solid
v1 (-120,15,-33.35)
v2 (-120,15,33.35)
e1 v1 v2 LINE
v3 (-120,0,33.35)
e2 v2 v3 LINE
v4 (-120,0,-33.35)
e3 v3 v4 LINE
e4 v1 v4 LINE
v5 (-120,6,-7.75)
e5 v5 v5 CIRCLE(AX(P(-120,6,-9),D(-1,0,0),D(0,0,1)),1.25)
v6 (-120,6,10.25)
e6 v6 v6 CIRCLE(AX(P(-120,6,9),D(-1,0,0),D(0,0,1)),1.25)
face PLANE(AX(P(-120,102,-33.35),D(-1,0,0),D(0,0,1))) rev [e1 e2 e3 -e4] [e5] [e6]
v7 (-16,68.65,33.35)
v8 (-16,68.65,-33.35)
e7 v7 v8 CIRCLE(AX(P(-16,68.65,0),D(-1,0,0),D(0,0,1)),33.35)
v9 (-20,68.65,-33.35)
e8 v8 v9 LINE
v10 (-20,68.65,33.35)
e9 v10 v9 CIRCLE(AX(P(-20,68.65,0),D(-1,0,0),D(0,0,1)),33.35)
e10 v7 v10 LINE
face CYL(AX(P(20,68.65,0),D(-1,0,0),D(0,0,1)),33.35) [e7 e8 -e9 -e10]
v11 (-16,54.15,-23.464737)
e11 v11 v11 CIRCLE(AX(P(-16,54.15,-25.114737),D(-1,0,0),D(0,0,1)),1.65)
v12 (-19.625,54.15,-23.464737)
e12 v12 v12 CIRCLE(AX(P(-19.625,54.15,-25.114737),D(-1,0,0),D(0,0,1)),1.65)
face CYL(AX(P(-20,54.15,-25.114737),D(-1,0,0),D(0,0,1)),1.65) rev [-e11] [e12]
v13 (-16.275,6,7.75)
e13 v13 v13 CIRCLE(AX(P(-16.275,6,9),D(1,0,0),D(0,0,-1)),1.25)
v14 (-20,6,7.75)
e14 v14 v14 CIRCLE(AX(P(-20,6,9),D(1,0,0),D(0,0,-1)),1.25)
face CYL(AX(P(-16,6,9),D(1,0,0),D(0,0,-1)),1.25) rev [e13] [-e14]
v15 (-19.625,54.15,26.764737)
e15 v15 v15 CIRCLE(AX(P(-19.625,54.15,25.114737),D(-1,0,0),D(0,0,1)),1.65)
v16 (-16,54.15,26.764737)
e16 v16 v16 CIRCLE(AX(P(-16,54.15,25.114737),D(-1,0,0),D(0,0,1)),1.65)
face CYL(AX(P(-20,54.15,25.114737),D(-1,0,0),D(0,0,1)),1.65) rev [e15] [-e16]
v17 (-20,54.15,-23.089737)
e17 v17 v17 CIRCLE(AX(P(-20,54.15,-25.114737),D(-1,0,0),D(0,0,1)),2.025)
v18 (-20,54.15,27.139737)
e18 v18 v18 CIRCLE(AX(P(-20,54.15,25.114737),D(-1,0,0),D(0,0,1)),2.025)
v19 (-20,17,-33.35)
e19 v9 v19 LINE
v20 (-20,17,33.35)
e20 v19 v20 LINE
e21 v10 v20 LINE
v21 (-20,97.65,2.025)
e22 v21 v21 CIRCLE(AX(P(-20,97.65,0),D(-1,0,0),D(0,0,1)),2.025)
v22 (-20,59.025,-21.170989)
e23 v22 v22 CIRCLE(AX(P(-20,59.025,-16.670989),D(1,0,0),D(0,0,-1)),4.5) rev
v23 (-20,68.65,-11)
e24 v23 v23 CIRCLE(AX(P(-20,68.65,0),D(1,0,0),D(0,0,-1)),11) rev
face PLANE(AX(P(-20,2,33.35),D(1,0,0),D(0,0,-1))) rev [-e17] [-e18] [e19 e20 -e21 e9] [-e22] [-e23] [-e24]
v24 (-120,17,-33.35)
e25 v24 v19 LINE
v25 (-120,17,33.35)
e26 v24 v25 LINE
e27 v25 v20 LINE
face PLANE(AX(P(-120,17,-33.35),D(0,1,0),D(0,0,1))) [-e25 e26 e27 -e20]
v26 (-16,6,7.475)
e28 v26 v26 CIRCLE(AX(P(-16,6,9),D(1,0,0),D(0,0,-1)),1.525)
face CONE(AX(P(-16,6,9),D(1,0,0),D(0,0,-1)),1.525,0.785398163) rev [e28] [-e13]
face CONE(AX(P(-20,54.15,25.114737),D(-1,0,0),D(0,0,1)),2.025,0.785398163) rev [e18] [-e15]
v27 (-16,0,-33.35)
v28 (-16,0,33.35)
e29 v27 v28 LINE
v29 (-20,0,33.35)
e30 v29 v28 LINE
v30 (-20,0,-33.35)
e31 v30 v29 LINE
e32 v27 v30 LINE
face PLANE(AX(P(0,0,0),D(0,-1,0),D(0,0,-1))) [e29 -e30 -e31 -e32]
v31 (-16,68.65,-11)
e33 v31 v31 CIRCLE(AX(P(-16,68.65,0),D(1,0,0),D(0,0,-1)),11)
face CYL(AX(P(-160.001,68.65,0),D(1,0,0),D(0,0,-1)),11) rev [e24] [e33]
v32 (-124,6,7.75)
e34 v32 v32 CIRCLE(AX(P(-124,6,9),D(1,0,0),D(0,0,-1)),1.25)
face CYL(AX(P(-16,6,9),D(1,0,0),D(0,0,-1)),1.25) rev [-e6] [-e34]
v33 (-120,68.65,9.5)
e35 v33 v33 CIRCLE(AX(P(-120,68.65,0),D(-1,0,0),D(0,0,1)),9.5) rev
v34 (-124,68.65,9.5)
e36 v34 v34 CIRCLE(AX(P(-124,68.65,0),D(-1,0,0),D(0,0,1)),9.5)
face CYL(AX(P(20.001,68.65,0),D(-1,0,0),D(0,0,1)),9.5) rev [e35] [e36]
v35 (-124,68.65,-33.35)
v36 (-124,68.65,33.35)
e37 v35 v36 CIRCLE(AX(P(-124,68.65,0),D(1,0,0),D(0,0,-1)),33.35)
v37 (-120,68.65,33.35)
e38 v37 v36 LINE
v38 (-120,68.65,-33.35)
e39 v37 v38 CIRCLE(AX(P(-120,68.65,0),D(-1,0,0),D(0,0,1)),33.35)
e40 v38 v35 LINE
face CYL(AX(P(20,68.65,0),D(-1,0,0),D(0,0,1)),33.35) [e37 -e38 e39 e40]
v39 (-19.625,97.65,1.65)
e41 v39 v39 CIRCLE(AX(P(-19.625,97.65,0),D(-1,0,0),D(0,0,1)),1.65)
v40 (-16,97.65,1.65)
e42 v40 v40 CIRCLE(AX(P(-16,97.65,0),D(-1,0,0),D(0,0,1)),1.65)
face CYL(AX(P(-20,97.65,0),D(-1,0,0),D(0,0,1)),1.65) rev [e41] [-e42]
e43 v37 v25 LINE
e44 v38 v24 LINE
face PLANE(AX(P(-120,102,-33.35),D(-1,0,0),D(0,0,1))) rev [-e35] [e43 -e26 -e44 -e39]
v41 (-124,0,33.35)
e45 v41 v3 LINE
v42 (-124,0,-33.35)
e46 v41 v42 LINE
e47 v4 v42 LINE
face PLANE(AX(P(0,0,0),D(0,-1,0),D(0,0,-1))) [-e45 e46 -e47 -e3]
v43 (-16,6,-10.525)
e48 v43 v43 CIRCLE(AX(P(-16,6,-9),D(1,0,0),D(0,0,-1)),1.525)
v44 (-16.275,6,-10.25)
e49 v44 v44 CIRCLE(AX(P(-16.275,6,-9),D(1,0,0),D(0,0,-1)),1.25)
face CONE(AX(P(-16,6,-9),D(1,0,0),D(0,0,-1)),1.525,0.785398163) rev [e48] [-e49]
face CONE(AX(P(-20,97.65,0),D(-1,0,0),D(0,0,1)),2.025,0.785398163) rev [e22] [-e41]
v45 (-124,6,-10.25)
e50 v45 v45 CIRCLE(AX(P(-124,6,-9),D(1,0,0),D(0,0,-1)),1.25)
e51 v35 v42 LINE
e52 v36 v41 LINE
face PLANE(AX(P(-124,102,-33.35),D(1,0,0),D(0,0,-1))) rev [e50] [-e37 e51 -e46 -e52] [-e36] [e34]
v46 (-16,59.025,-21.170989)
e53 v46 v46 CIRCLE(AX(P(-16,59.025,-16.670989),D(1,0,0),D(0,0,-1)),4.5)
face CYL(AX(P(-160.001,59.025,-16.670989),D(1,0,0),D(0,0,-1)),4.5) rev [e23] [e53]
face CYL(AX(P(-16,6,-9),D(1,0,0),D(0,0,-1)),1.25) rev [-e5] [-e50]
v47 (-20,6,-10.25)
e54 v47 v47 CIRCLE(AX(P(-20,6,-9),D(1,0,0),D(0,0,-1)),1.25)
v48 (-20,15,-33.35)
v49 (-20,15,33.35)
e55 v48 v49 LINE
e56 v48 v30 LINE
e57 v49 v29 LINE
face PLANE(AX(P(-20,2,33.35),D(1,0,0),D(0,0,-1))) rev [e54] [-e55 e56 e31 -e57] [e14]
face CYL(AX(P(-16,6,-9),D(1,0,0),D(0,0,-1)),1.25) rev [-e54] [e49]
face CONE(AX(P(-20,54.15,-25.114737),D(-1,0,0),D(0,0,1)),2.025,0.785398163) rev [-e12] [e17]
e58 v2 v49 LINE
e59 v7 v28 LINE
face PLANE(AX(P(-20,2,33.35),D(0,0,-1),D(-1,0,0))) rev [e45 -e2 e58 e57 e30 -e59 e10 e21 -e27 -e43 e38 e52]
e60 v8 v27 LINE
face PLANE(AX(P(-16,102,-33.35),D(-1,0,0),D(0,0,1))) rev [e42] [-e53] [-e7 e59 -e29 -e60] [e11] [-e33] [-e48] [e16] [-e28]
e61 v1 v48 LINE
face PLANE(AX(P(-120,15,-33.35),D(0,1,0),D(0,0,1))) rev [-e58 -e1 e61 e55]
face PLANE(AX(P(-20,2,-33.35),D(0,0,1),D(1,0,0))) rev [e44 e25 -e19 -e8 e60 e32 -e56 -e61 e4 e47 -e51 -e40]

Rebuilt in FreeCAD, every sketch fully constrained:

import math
import FreeCAD as App
import Part
import Sketcher
from FreeCAD import Vector
Q = App.Units.Quantity


def edges_at(feature, points):
    """Names of the edges that pass closest to the given points."""
    edges = feature.Shape.Edges
    near = lambda p: min(range(len(edges)), key=lambda i: edges[i].distToShape(Part.Vertex(*p))[0])
    return sorted({f"Edge{near(p) + 1}" for p in points})

doc = App.newDocument("Part")
params = doc.addObject("Spreadsheet::Sheet", "Params")
for row, (alias, value) in enumerate([
    ("sketch1_width", "40 mm"),
    ("sketch1_height", "66.7 mm"),
    ("pad1_length", "2 mm"),
    ("sketch2_width", "4 mm"),
    ("sketch2_height", "66.7 mm"),
    ("pad2_length", "100 mm"),
    ("sketch3_radius", "33.35 mm"),
    ("sketch4_diameter", "3.3 mm"),
    ("hole_diameter", "3.3 mm"),
    ("hole_csink_diameter", "4.05 mm"),
    ("sketch5_width", "2 mm"),
    ("sketch5_height", "1.65 mm"),
    ("groove_angle", "360 deg"),
    ("linearpattern_pitch", "68.592947 mm"),
    ("linearpattern2_pitch", "26 mm"),
    ("linearpattern3_pitch", "62.376999 mm"),
    ("linearpattern4_pitch", "56.7 mm"),
    ("sketch6_width", "2 mm"),
    ("sketch6_height", "66.7 mm"),
    ("pad3_length", "100 mm"),
    ("sketch7_width", "40 mm"),
    ("sketch7_height", "66.7 mm"),
    ("pad4_length", "2 mm"),
    ("sketch8_width", "4 mm"),
    ("sketch8_height", "66.7 mm"),
    ("pad5_length", "100 mm"),
    ("sketch9_radius", "33.35 mm"),
    ("sketch10_width", "2 mm"),
    ("sketch10_height", "1.65 mm"),
    ("groove2_angle", "360 deg"),
    ("linearpattern5_pitch", "26 mm"),
    ("linearpattern6_pitch", "62.376999 mm"),
    ("linearpattern7_pitch", "56.7 mm"),
    ("sketch11_diameter", "19 mm"),
    ("sketch12_diameter", "22 mm"),
    ("sketch13_diameter", "9 mm"),
    ("fillet_radius", "2 mm"),
    ("sketch14_width", "36 mm"),
    ("sketch14_height", "66.7 mm"),
    ("sketch15_width", "36 mm"),
    ("sketch15_height", "66.7 mm"),
    ("sketch16_diameter", "2.5 mm"),
    ("hole2_diameter", "2.5 mm"),
    ("hole2_csink_diameter", "3.05 mm"),
], start=1):
    params.set(f"A{row}", alias)
    params.set(f"B{row}", "=" + value)
    params.setAlias(f"B{row}", alias)

body = doc.addObject("PartDesign::Body", "Body")

sketch1 = body.newObject("Sketcher::SketchObject", "Sketch")
sketch1.AttachmentSupport = (doc.getObject("XZ_Plane"), [""])
sketch1.MapMode = "FlatFace"
sketch1.addGeometry([
    Part.LineSegment(Vector(-20, -33, 0), Vector(-20, 33, 0)),
    Part.LineSegment(Vector(-20, 33, 0), Vector(20, 33, 0)),
    Part.LineSegment(Vector(20, 33, 0), Vector(20, -33, 0)),
    Part.LineSegment(Vector(20, -33, 0), Vector(-20, -33, 0)),
], False)
sketch1.addConstraint([
    Sketcher.Constraint("Coincident", 0, 2, 1, 1),
    Sketcher.Constraint("Coincident", 1, 2, 2, 1),
    Sketcher.Constraint("Coincident", 2, 2, 3, 1),
    Sketcher.Constraint("Coincident", 3, 2, 0, 1),
    Sketcher.Constraint("Vertical", 0),
    Sketcher.Constraint("Horizontal", 1),
    Sketcher.Constraint("Vertical", 2),
    Sketcher.Constraint("Horizontal", 3),
    Sketcher.Constraint("Symmetric", 0, 2, 2, 2, -1, 1),
    Sketcher.Constraint("DistanceX", 1, 1, 1, 2, Q("40 mm")),
    Sketcher.Constraint("DistanceY", 0, 1, 0, 2, Q("66.7 mm")),
])
sketch1.setExpression("Constraints[9]", "Params.sketch1_width")
sketch1.setExpression("Constraints[10]", "Params.sketch1_height")
pad1 = body.newObject("PartDesign::Pad", "Pad")
pad1.Profile = sketch1
pad1.setExpression("Length", "Params.pad1_length")
pad1.Reversed = True

sketch2 = body.newObject("Sketcher::SketchObject", "Sketch001")
sketch2.AttachmentSupport = (doc.getObject("XZ_Plane"), [""])
sketch2.MapMode = "FlatFace"
sketch2.AttachmentOffset = App.Placement(Vector(0, 0, -2), App.Rotation())
sketch2.addGeometry([
    Part.LineSegment(Vector(-20, -33.4, 0), Vector(-20, 33.4, 0)),
    Part.LineSegment(Vector(-20, 33.4, 0), Vector(-16, 33.4, 0)),
    Part.LineSegment(Vector(-16, 33.4, 0), Vector(-16, -33.4, 0)),
    Part.LineSegment(Vector(-16, -33.4, 0), Vector(-20, -33.4, 0)),
], False)
sketch2.addConstraint([
    Sketcher.Constraint("Coincident", 0, 2, 1, 1),
    Sketcher.Constraint("Coincident", 1, 2, 2, 1),
    Sketcher.Constraint("Coincident", 2, 2, 3, 1),
    Sketcher.Constraint("Coincident", 3, 2, 0, 1),
    Sketcher.Constraint("Vertical", 0),
    Sketcher.Constraint("Horizontal", 1),
    Sketcher.Constraint("Vertical", 2),
    Sketcher.Constraint("Horizontal", 3),
    Sketcher.Constraint("DistanceX", 1, 1, 1, 2, Q("4 mm")),
    Sketcher.Constraint("DistanceY", 0, 1, 0, 2, Q("66.7 mm")),
    Sketcher.Constraint("DistanceX", 0, 2, -1, 1, Q("20 mm")),
    Sketcher.Constraint("DistanceY", -1, 1, 0, 2, Q("33.35 mm")),
])
sketch2.setExpression("Constraints[8]", "Params.sketch2_width")
sketch2.setExpression("Constraints[9]", "Params.sketch2_height")
pad2 = body.newObject("PartDesign::Pad", "Pad001")
pad2.Profile = sketch2
pad2.setExpression("Length", "Params.pad2_length")
pad2.Reversed = True

sketch3 = body.newObject("Sketcher::SketchObject", "Sketch002")
sketch3.AttachmentSupport = (doc.getObject("YZ_Plane"), [""])
sketch3.MapMode = "FlatFace"
sketch3.AttachmentOffset = App.Placement(Vector(0, 0, -20), App.Rotation())
sketch3.addGeometry([
    Part.ArcOfCircle(Part.Circle(Vector(69, 0, 0), Vector(0, 0, 1), 33), math.radians(0), math.radians(90)),
    Part.LineSegment(Vector(69, 33, 0), Vector(102, 33, 0)),
    Part.LineSegment(Vector(102, 33, 0), Vector(102, 0, 0)),
    Part.ArcOfCircle(Part.Circle(Vector(69, 0, 0), Vector(0, 0, 1), 33), math.radians(-90), math.radians(0)),
    Part.LineSegment(Vector(102, 0, 0), Vector(102, -33, 0)),
    Part.LineSegment(Vector(102, -33, 0), Vector(69, -33, 0)),
], False)
sketch3.addConstraint([
    Sketcher.Constraint("Tangent", 0, 2, 1, 1),
    Sketcher.Constraint("Coincident", 1, 2, 2, 1),
    Sketcher.Constraint("Tangent", 2, 2, 0, 1),
    Sketcher.Constraint("Tangent", 3, 2, 4, 1),
    Sketcher.Constraint("Coincident", 4, 2, 5, 1),
    Sketcher.Constraint("Tangent", 5, 2, 3, 1),
    Sketcher.Constraint("Horizontal", 1),
    Sketcher.Constraint("Vertical", 2),
    Sketcher.Constraint("Vertical", 4),
    Sketcher.Constraint("Horizontal", 5),
    Sketcher.Constraint("Coincident", 3, 3, 0, 3),
    Sketcher.Constraint("Equal", 0, 3),
    Sketcher.Constraint("PointOnObject", 0, 3, -1),
    Sketcher.Constraint("Radius", 0, Q("33.35 mm")),
    Sketcher.Constraint("DistanceX", -1, 1, 1, 2, Q("102 mm")),
])
sketch3.setExpression("Constraints[13]", "Params.sketch3_radius")
pocket1 = body.newObject("PartDesign::Pocket", "Pocket")
pocket1.Profile = sketch3
pocket1.Type = "ThroughAll"
pocket1.Midplane = True

sketch4 = body.newObject("Sketcher::SketchObject", "Sketch003")
sketch4.AttachmentSupport = (doc.getObject("YZ_Plane"), [""])
sketch4.MapMode = "FlatFace"
sketch4.AttachmentOffset = App.Placement(Vector(0, 0, -20), App.Rotation())
sketch4.addGeometry([
    Part.Circle(Vector(97.7, 0, 0), Vector(0, 0, 1), 1.6),
    Part.Circle(Vector(54.1, 25.1, 0), Vector(0, 0, 1), 1.6),
    Part.Circle(Vector(54.1, -25.1, 0), Vector(0, 0, 1), 1.6),
], False)
sketch4.addConstraint([
    Sketcher.Constraint("Equal", 0, 1),
    Sketcher.Constraint("Equal", 1, 2),
    Sketcher.Constraint("Symmetric", 1, 3, 2, 3, -1),
    Sketcher.Constraint("PointOnObject", 0, 3, -1),
    Sketcher.Constraint("Diameter", 0, Q("3.3 mm")),
    Sketcher.Constraint("DistanceX", 1, 3, 0, 3, Q("43.5 mm")),
    Sketcher.Constraint("DistanceX", -1, 1, 0, 3, Q("97.65 mm")),
    Sketcher.Constraint("DistanceY", -1, 1, 1, 3, Q("25.114737 mm")),
])
sketch4.setExpression("Constraints[4]", "Params.sketch4_diameter")
doc.recompute()
hole = body.newObject("PartDesign::Hole", "Hole")
hole.Profile = sketch4
hole.ThreadType = "None"
hole.setExpression("Diameter", "Params.hole_diameter")
hole.DepthType = "ThroughAll"
hole.HoleCutType = "Countersink"
hole.setExpression("HoleCutDiameter", "Params.hole_csink_diameter")
hole.HoleCutCountersinkAngle = 90
hole.Reversed = True

sketch5 = body.newObject("Sketcher::SketchObject", "Sketch004")
sketch5.AttachmentSupport = (doc.getObject("YZ_Plane"), [""])
sketch5.MapMode = "FlatFace"
sketch5.AttachmentOffset = App.Placement(Vector(0, 0, 15), App.Rotation())
sketch5.addGeometry([
    Part.LineSegment(Vector(0, -28.4, 0), Vector(2, -28.4, 0)),
    Part.LineSegment(Vector(2, -28.4, 0), Vector(2, -26.3, 0)),
    Part.LineSegment(Vector(2, -26.3, 0), Vector(1.6, -26.7, 0)),
    Part.LineSegment(Vector(1.6, -26.7, 0), Vector(0, -26.7, 0)),
    Part.LineSegment(Vector(0, -26.7, 0), Vector(0, -28.4, 0)),
], False)
sketch5.addGeometry(Part.LineSegment(Vector(2, -28.4, 0), Vector(0, -28.4, 0)), True)
sketch5.addConstraint([
    Sketcher.Constraint("Coincident", 0, 2, 1, 1),
    Sketcher.Constraint("Coincident", 1, 2, 2, 1),
    Sketcher.Constraint("Coincident", 2, 2, 3, 1),
    Sketcher.Constraint("Coincident", 3, 2, 4, 1),
    Sketcher.Constraint("Coincident", 4, 2, 0, 1),
    Sketcher.Constraint("Horizontal", 0),
    Sketcher.Constraint("Vertical", 1),
    Sketcher.Constraint("Horizontal", 3),
    Sketcher.Constraint("Vertical", 4),
    Sketcher.Constraint("Horizontal", 5),
    Sketcher.Constraint("Coincident", 5, 1, 0, 2),
    Sketcher.Constraint("PointOnObject", 3, 2, -2),
    Sketcher.Constraint("PointOnObject", 5, 2, -2),
    Sketcher.Constraint("DistanceX", 0, 1, 0, 2, Q("2 mm")),
    Sketcher.Constraint("Angle", 2, Q("-135 deg")),
    Sketcher.Constraint("DistanceY", 4, 2, 4, 1, Q("1.65 mm")),
    Sketcher.Constraint("DistanceY", 2, 2, -1, 1, Q("26.7 mm")),
    Sketcher.Constraint("DistanceX", 3, 2, 3, 1, Q("1.625 mm")),
])
sketch5.setExpression("Constraints[13]", "Params.sketch5_width")
sketch5.setExpression("Constraints[15]", "Params.sketch5_height")
groove = body.newObject("PartDesign::Groove", "Groove")
groove.Profile = sketch5
groove.ReferenceAxis = (sketch5, ["Axis0"])
groove.setExpression("Angle", "Params.groove_angle")
doc.recompute()

datumline = body.newObject("PartDesign::Line", "DatumLine")
datumline.Placement = App.Placement(Vector(0, 0, 0), App.Rotation(Vector(0, 0, 1), Vector(-0.950808565, 0, 0.309779072)))
linearpattern = body.newObject("PartDesign::LinearPattern", "LinearPattern")
linearpattern.Originals = [groove]
linearpattern.Direction = (datumline, [""])
linearpattern.Mode = "offset"
linearpattern.setExpression("Offset", "Params.linearpattern_pitch")
linearpattern.Occurrences = 2
body.Tip = linearpattern
doc.recompute()

linearpattern2 = body.newObject("PartDesign::LinearPattern", "LinearPattern001")
linearpattern2.Originals = [groove]
linearpattern2.Direction = (doc.getObject("X_Axis"), [""])
linearpattern2.Mode = "offset"
linearpattern2.setExpression("Offset", "Params.linearpattern2_pitch")
linearpattern2.Occurrences = 2
linearpattern2.Reversed = True
body.Tip = linearpattern2
doc.recompute()

datumline2 = body.newObject("PartDesign::Line", "DatumLine001")
datumline2.Placement = App.Placement(Vector(0, 0, 0), App.Rotation(Vector(0, 0, 1), Vector(-0.416820309, 0, 0.908988905)))
linearpattern3 = body.newObject("PartDesign::LinearPattern", "LinearPattern002")
linearpattern3.Originals = [groove]
linearpattern3.Direction = (datumline2, [""])
linearpattern3.Mode = "offset"
linearpattern3.setExpression("Offset", "Params.linearpattern3_pitch")
linearpattern3.Occurrences = 2
body.Tip = linearpattern3
doc.recompute()

linearpattern4 = body.newObject("PartDesign::LinearPattern", "LinearPattern003")
linearpattern4.Originals = [groove]
linearpattern4.Direction = (doc.getObject("Z_Axis"), [""])
linearpattern4.Mode = "offset"
linearpattern4.setExpression("Offset", "Params.linearpattern4_pitch")
linearpattern4.Occurrences = 2
body.Tip = linearpattern4

sketch6 = body.newObject("Sketcher::SketchObject", "Sketch005")
sketch6.AttachmentSupport = (doc.getObject("YZ_Plane"), [""])
sketch6.MapMode = "FlatFace"
sketch6.AttachmentOffset = App.Placement(Vector(0, 0, -20), App.Rotation())
sketch6.addGeometry([
    Part.LineSegment(Vector(17, -33.4, 0), Vector(15, -33.4, 0)),
    Part.LineSegment(Vector(15, -33.4, 0), Vector(15, 33.4, 0)),
    Part.LineSegment(Vector(15, 33.4, 0), Vector(17, 33.4, 0)),
    Part.LineSegment(Vector(17, 33.4, 0), Vector(17, -33.4, 0)),
], False)
sketch6.addConstraint([
    Sketcher.Constraint("Coincident", 0, 2, 1, 1),
    Sketcher.Constraint("Coincident", 1, 2, 2, 1),
    Sketcher.Constraint("Coincident", 2, 2, 3, 1),
    Sketcher.Constraint("Coincident", 3, 2, 0, 1),
    Sketcher.Constraint("Horizontal", 0),
    Sketcher.Constraint("Vertical", 1),
    Sketcher.Constraint("Horizontal", 2),
    Sketcher.Constraint("Vertical", 3),
    Sketcher.Constraint("DistanceX", 0, 2, 0, 1, Q("2 mm")),
    Sketcher.Constraint("DistanceY", 1, 1, 1, 2, Q("66.7 mm")),
    Sketcher.Constraint("DistanceX", -1, 1, 0, 2, Q("15 mm")),
    Sketcher.Constraint("DistanceY", 0, 2, -1, 1, Q("33.35 mm")),
])
sketch6.setExpression("Constraints[8]", "Params.sketch6_width")
sketch6.setExpression("Constraints[9]", "Params.sketch6_height")
pad3 = body.newObject("PartDesign::Pad", "Pad002")
pad3.Profile = sketch6
pad3.setExpression("Length", "Params.pad3_length")
pad3.Reversed = True
body2 = doc.addObject("PartDesign::Body", "Body001")

sketch7 = body2.newObject("Sketcher::SketchObject", "Sketch006")
sketch7.AttachmentSupport = (doc.getObject("XZ_Plane001"), [""])
sketch7.MapMode = "FlatFace"
sketch7.addGeometry([
    Part.LineSegment(Vector(-160, -33, 0), Vector(-160, 33, 0)),
    Part.LineSegment(Vector(-160, 33, 0), Vector(-120, 33, 0)),
    Part.LineSegment(Vector(-120, 33, 0), Vector(-120, -33, 0)),
    Part.LineSegment(Vector(-120, -33, 0), Vector(-160, -33, 0)),
], False)
sketch7.addConstraint([
    Sketcher.Constraint("Coincident", 0, 2, 1, 1),
    Sketcher.Constraint("Coincident", 1, 2, 2, 1),
    Sketcher.Constraint("Coincident", 2, 2, 3, 1),
    Sketcher.Constraint("Coincident", 3, 2, 0, 1),
    Sketcher.Constraint("Vertical", 0),
    Sketcher.Constraint("Horizontal", 1),
    Sketcher.Constraint("Vertical", 2),
    Sketcher.Constraint("Horizontal", 3),
    Sketcher.Constraint("DistanceX", 1, 1, 1, 2, Q("40 mm")),
    Sketcher.Constraint("DistanceY", 0, 1, 0, 2, Q("66.7 mm")),
    Sketcher.Constraint("DistanceX", 0, 2, -1, 1, Q("160 mm")),
    Sketcher.Constraint("DistanceY", -1, 1, 0, 2, Q("33.35 mm")),
])
sketch7.setExpression("Constraints[8]", "Params.sketch7_width")
sketch7.setExpression("Constraints[9]", "Params.sketch7_height")
pad4 = body2.newObject("PartDesign::Pad", "Pad003")
pad4.Profile = sketch7
pad4.setExpression("Length", "Params.pad4_length")
pad4.Reversed = True
body.AllowCompound = True
doc.recompute()

boolean = body.newObject("PartDesign::Boolean", "Boolean")
boolean.Type = "Fuse"
boolean.addObjects([body2])

sketch8 = body.newObject("Sketcher::SketchObject", "Sketch007")
sketch8.AttachmentSupport = (doc.getObject("XZ_Plane"), [""])
sketch8.MapMode = "FlatFace"
sketch8.AttachmentOffset = App.Placement(Vector(0, 0, -2), App.Rotation())
sketch8.addGeometry([
    Part.LineSegment(Vector(-124, -33.4, 0), Vector(-124, 33.4, 0)),
    Part.LineSegment(Vector(-124, 33.4, 0), Vector(-120, 33.4, 0)),
    Part.LineSegment(Vector(-120, 33.4, 0), Vector(-120, -33.4, 0)),
    Part.LineSegment(Vector(-120, -33.4, 0), Vector(-124, -33.4, 0)),
], False)
sketch8.addConstraint([
    Sketcher.Constraint("Coincident", 0, 2, 1, 1),
    Sketcher.Constraint("Coincident", 1, 2, 2, 1),
    Sketcher.Constraint("Coincident", 2, 2, 3, 1),
    Sketcher.Constraint("Coincident", 3, 2, 0, 1),
    Sketcher.Constraint("Vertical", 0),
    Sketcher.Constraint("Horizontal", 1),
    Sketcher.Constraint("Vertical", 2),
    Sketcher.Constraint("Horizontal", 3),
    Sketcher.Constraint("DistanceX", 1, 1, 1, 2, Q("4 mm")),
    Sketcher.Constraint("DistanceY", 0, 1, 0, 2, Q("66.7 mm")),
    Sketcher.Constraint("DistanceX", 0, 2, -1, 1, Q("124 mm")),
    Sketcher.Constraint("DistanceY", -1, 1, 0, 2, Q("33.35 mm")),
])
sketch8.setExpression("Constraints[8]", "Params.sketch8_width")
sketch8.setExpression("Constraints[9]", "Params.sketch8_height")
pad5 = body.newObject("PartDesign::Pad", "Pad004")
pad5.Profile = sketch8
pad5.setExpression("Length", "Params.pad5_length")
pad5.Reversed = True

sketch9 = body.newObject("Sketcher::SketchObject", "Sketch008")
sketch9.AttachmentSupport = (doc.getObject("YZ_Plane"), [""])
sketch9.MapMode = "FlatFace"
sketch9.AttachmentOffset = App.Placement(Vector(0, 0, -124), App.Rotation())
sketch9.addGeometry([
    Part.ArcOfCircle(Part.Circle(Vector(69, 0, 0), Vector(0, 0, 1), 33), math.radians(0), math.radians(90)),
    Part.LineSegment(Vector(69, 33, 0), Vector(102, 33, 0)),
    Part.LineSegment(Vector(102, 33, 0), Vector(102, 0, 0)),
    Part.ArcOfCircle(Part.Circle(Vector(69, 0, 0), Vector(0, 0, 1), 33), math.radians(-90), math.radians(0)),
    Part.LineSegment(Vector(102, 0, 0), Vector(102, -33, 0)),
    Part.LineSegment(Vector(102, -33, 0), Vector(69, -33, 0)),
], False)
sketch9.addConstraint([
    Sketcher.Constraint("Tangent", 0, 2, 1, 1),
    Sketcher.Constraint("Coincident", 1, 2, 2, 1),
    Sketcher.Constraint("Tangent", 2, 2, 0, 1),
    Sketcher.Constraint("Tangent", 3, 2, 4, 1),
    Sketcher.Constraint("Coincident", 4, 2, 5, 1),
    Sketcher.Constraint("Tangent", 5, 2, 3, 1),
    Sketcher.Constraint("Horizontal", 1),
    Sketcher.Constraint("Vertical", 2),
    Sketcher.Constraint("Vertical", 4),
    Sketcher.Constraint("Horizontal", 5),
    Sketcher.Constraint("Coincident", 3, 3, 0, 3),
    Sketcher.Constraint("Equal", 0, 3),
    Sketcher.Constraint("PointOnObject", 0, 3, -1),
    Sketcher.Constraint("Radius", 0, Q("33.35 mm")),
    Sketcher.Constraint("DistanceX", -1, 1, 1, 2, Q("102 mm")),
])
sketch9.setExpression("Constraints[13]", "Params.sketch9_radius")
pocket2 = body.newObject("PartDesign::Pocket", "Pocket001")
pocket2.Profile = sketch9
pocket2.Type = "ThroughAll"
pocket2.Midplane = True

sketch10 = body.newObject("Sketcher::SketchObject", "Sketch009")
sketch10.AttachmentSupport = (doc.getObject("YZ_Plane"), [""])
sketch10.MapMode = "FlatFace"
sketch10.AttachmentOffset = App.Placement(Vector(0, 0, -129), App.Rotation())
sketch10.addGeometry([
    Part.LineSegment(Vector(0, -28.4, 0), Vector(2, -28.4, 0)),
    Part.LineSegment(Vector(2, -28.4, 0), Vector(2, -26.3, 0)),
    Part.LineSegment(Vector(2, -26.3, 0), Vector(1.6, -26.7, 0)),
    Part.LineSegment(Vector(1.6, -26.7, 0), Vector(0, -26.7, 0)),
    Part.LineSegment(Vector(0, -26.7, 0), Vector(0, -28.4, 0)),
], False)
sketch10.addGeometry(Part.LineSegment(Vector(2, -28.4, 0), Vector(0, -28.4, 0)), True)
sketch10.addConstraint([
    Sketcher.Constraint("Coincident", 0, 2, 1, 1),
    Sketcher.Constraint("Coincident", 1, 2, 2, 1),
    Sketcher.Constraint("Coincident", 2, 2, 3, 1),
    Sketcher.Constraint("Coincident", 3, 2, 4, 1),
    Sketcher.Constraint("Coincident", 4, 2, 0, 1),
    Sketcher.Constraint("Horizontal", 0),
    Sketcher.Constraint("Vertical", 1),
    Sketcher.Constraint("Horizontal", 3),
    Sketcher.Constraint("Vertical", 4),
    Sketcher.Constraint("Horizontal", 5),
    Sketcher.Constraint("Coincident", 5, 1, 0, 2),
    Sketcher.Constraint("PointOnObject", 3, 2, -2),
    Sketcher.Constraint("PointOnObject", 5, 2, -2),
    Sketcher.Constraint("DistanceX", 0, 1, 0, 2, Q("2 mm")),
    Sketcher.Constraint("Angle", 2, Q("-135 deg")),
    Sketcher.Constraint("DistanceY", 4, 2, 4, 1, Q("1.65 mm")),
    Sketcher.Constraint("DistanceY", 2, 2, -1, 1, Q("26.7 mm")),
    Sketcher.Constraint("DistanceX", 3, 2, 3, 1, Q("1.625 mm")),
])
sketch10.setExpression("Constraints[13]", "Params.sketch10_width")
sketch10.setExpression("Constraints[15]", "Params.sketch10_height")
groove2 = body.newObject("PartDesign::Groove", "Groove001")
groove2.Profile = sketch10
groove2.ReferenceAxis = (sketch10, ["Axis0"])
groove2.setExpression("Angle", "Params.groove2_angle")
doc.recompute()

linearpattern5 = body.newObject("PartDesign::LinearPattern", "LinearPattern004")
linearpattern5.Originals = [groove2]
linearpattern5.Direction = (doc.getObject("X_Axis"), [""])
linearpattern5.Mode = "offset"
linearpattern5.setExpression("Offset", "Params.linearpattern5_pitch")
linearpattern5.Occurrences = 2
linearpattern5.Reversed = True
body.Tip = linearpattern5
doc.recompute()

datumline3 = body.newObject("PartDesign::Line", "DatumLine002")
datumline3.Placement = App.Placement(Vector(0, 0, 0), App.Rotation(Vector(0, 0, 1), Vector(-0.416820309, 0, 0.908988905)))
linearpattern6 = body.newObject("PartDesign::LinearPattern", "LinearPattern005")
linearpattern6.Originals = [groove2]
linearpattern6.Direction = (datumline3, [""])
linearpattern6.Mode = "offset"
linearpattern6.setExpression("Offset", "Params.linearpattern6_pitch")
linearpattern6.Occurrences = 2
body.Tip = linearpattern6
doc.recompute()

linearpattern7 = body.newObject("PartDesign::LinearPattern", "LinearPattern006")
linearpattern7.Originals = [groove2]
linearpattern7.Direction = (doc.getObject("Z_Axis"), [""])
linearpattern7.Mode = "offset"
linearpattern7.setExpression("Offset", "Params.linearpattern7_pitch")
linearpattern7.Occurrences = 2
body.Tip = linearpattern7

sketch11 = body.newObject("Sketcher::SketchObject", "Sketch010")
sketch11.AttachmentSupport = (doc.getObject("YZ_Plane"), [""])
sketch11.MapMode = "FlatFace"
sketch11.AttachmentOffset = App.Placement(Vector(0, 0, -124), App.Rotation())
sketch11.addGeometry(Part.Circle(Vector(69, 0, 0), Vector(0, 0, 1), 10), False)
sketch11.addConstraint([
    Sketcher.Constraint("PointOnObject", 0, 3, -1),
    Sketcher.Constraint("Diameter", 0, Q("19 mm")),
    Sketcher.Constraint("DistanceX", -1, 1, 0, 3, Q("68.65 mm")),
])
sketch11.setExpression("Constraints[1]", "Params.sketch11_diameter")
pocket3 = body.newObject("PartDesign::Pocket", "Pocket002")
pocket3.Profile = sketch11
pocket3.Type = "UpToFirst"
pocket3.Reversed = True

sketch12 = body.newObject("Sketcher::SketchObject", "Sketch011")
sketch12.AttachmentSupport = (doc.getObject("YZ_Plane"), [""])
sketch12.MapMode = "FlatFace"
sketch12.AttachmentOffset = App.Placement(Vector(0, 0, -16), App.Rotation())
sketch12.addGeometry(Part.Circle(Vector(69, 0, 0), Vector(0, 0, 1), 11), False)
sketch12.addConstraint([
    Sketcher.Constraint("PointOnObject", 0, 3, -1),
    Sketcher.Constraint("Diameter", 0, Q("22 mm")),
    Sketcher.Constraint("DistanceX", -1, 1, 0, 3, Q("68.65 mm")),
])
sketch12.setExpression("Constraints[1]", "Params.sketch12_diameter")
pocket4 = body.newObject("PartDesign::Pocket", "Pocket003")
pocket4.Profile = sketch12
pocket4.Type = "UpToFirst"

sketch13 = body.newObject("Sketcher::SketchObject", "Sketch012")
sketch13.AttachmentSupport = (doc.getObject("YZ_Plane"), [""])
sketch13.MapMode = "FlatFace"
sketch13.AttachmentOffset = App.Placement(Vector(0, 0, -16), App.Rotation())
sketch13.addGeometry(Part.Circle(Vector(59, -16.7, 0), Vector(0, 0, 1), 4.5), False)
sketch13.addConstraint([
    Sketcher.Constraint("Diameter", 0, Q("9 mm")),
    Sketcher.Constraint("DistanceX", -1, 1, 0, 3, Q("59.025 mm")),
    Sketcher.Constraint("DistanceY", 0, 3, -1, 1, Q("16.670989 mm")),
])
sketch13.setExpression("Constraints[0]", "Params.sketch13_diameter")
pocket5 = body.newObject("PartDesign::Pocket", "Pocket004")
pocket5.Profile = sketch13
pocket5.Type = "UpToFirst"
doc.recompute()

fillet = body.newObject("PartDesign::Fillet", "Fillet")
fillet.Base = (pocket5, edges_at(pocket5, [
    (-160, 1, -33.35),
    (-160, 1, 33.35),
    (20, 1, 33.35),
    (20, 1, -33.35),
]))
fillet.setExpression("Radius", "Params.fillet_radius")

sketch14 = body.newObject("Sketcher::SketchObject", "Sketch013")
sketch14.AttachmentSupport = (doc.getObject("XZ_Plane"), [""])
sketch14.MapMode = "FlatFace"
sketch14.AttachmentOffset = App.Placement(Vector(0, 0, -2), App.Rotation())
sketch14.addGeometry([
    Part.LineSegment(Vector(-160, -33, 0), Vector(-160, 33, 0)),
    Part.LineSegment(Vector(-160, 33, 0), Vector(-124, 33, 0)),
    Part.LineSegment(Vector(-124, 33, 0), Vector(-124, -33, 0)),
    Part.LineSegment(Vector(-124, -33, 0), Vector(-160, -33, 0)),
], False)
sketch14.addConstraint([
    Sketcher.Constraint("Coincident", 0, 2, 1, 1),
    Sketcher.Constraint("Coincident", 1, 2, 2, 1),
    Sketcher.Constraint("Coincident", 2, 2, 3, 1),
    Sketcher.Constraint("Coincident", 3, 2, 0, 1),
    Sketcher.Constraint("Vertical", 0),
    Sketcher.Constraint("Horizontal", 1),
    Sketcher.Constraint("Vertical", 2),
    Sketcher.Constraint("Horizontal", 3),
    Sketcher.Constraint("DistanceX", 1, 1, 1, 2, Q("36 mm")),
    Sketcher.Constraint("DistanceY", 0, 1, 0, 2, Q("66.7 mm")),
    Sketcher.Constraint("DistanceX", 0, 2, -1, 1, Q("160 mm")),
    Sketcher.Constraint("DistanceY", -1, 1, 0, 2, Q("33.35 mm")),
])
sketch14.setExpression("Constraints[8]", "Params.sketch14_width")
sketch14.setExpression("Constraints[9]", "Params.sketch14_height")
pocket6 = body.newObject("PartDesign::Pocket", "Pocket005")
pocket6.Profile = sketch14
pocket6.Type = "UpToFirst"
pocket6.Reversed = True

sketch15 = body.newObject("Sketcher::SketchObject", "Sketch014")
sketch15.AttachmentSupport = (doc.getObject("XZ_Plane"), [""])
sketch15.MapMode = "FlatFace"
sketch15.AttachmentOffset = App.Placement(Vector(0, 0, -2), App.Rotation())
sketch15.addGeometry([
    Part.LineSegment(Vector(-16, -33, 0), Vector(-16, 33, 0)),
    Part.LineSegment(Vector(-16, 33, 0), Vector(20, 33, 0)),
    Part.LineSegment(Vector(20, 33, 0), Vector(20, -33, 0)),
    Part.LineSegment(Vector(20, -33, 0), Vector(-16, -33, 0)),
], False)
sketch15.addConstraint([
    Sketcher.Constraint("Coincident", 0, 2, 1, 1),
    Sketcher.Constraint("Coincident", 1, 2, 2, 1),
    Sketcher.Constraint("Coincident", 2, 2, 3, 1),
    Sketcher.Constraint("Coincident", 3, 2, 0, 1),
    Sketcher.Constraint("Vertical", 0),
    Sketcher.Constraint("Horizontal", 1),
    Sketcher.Constraint("Vertical", 2),
    Sketcher.Constraint("Horizontal", 3),
    Sketcher.Constraint("DistanceX", 1, 1, 1, 2, Q("36 mm")),
    Sketcher.Constraint("DistanceY", 0, 1, 0, 2, Q("66.7 mm")),
    Sketcher.Constraint("DistanceX", 0, 2, -1, 1, Q("16 mm")),
    Sketcher.Constraint("DistanceY", -1, 1, 0, 2, Q("33.35 mm")),
])
sketch15.setExpression("Constraints[8]", "Params.sketch15_width")
sketch15.setExpression("Constraints[9]", "Params.sketch15_height")
pocket7 = body.newObject("PartDesign::Pocket", "Pocket006")
pocket7.Profile = sketch15
pocket7.Type = "UpToFirst"
pocket7.Reversed = True

sketch16 = body.newObject("Sketcher::SketchObject", "Sketch015")
sketch16.AttachmentSupport = (doc.getObject("YZ_Plane"), [""])
sketch16.MapMode = "FlatFace"
sketch16.AttachmentOffset = App.Placement(Vector(0, 0, -16), App.Rotation())
sketch16.addGeometry([
    Part.Circle(Vector(6, -9, 0), Vector(0, 0, 1), 1.2),
    Part.Circle(Vector(6, 9, 0), Vector(0, 0, 1), 1.2),
], False)
sketch16.addConstraint([
    Sketcher.Constraint("Equal", 0, 1),
    Sketcher.Constraint("Symmetric", 0, 3, 1, 3, -1),
    Sketcher.Constraint("Diameter", 0, Q("2.5 mm")),
    Sketcher.Constraint("DistanceX", -1, 1, 0, 3, Q("6 mm")),
    Sketcher.Constraint("DistanceY", 0, 3, -1, 1, Q("9 mm")),
])
sketch16.setExpression("Constraints[2]", "Params.sketch16_diameter")
doc.recompute()
hole2 = body.newObject("PartDesign::Hole", "Hole001")
hole2.Profile = sketch16
hole2.ThreadType = "None"
hole2.setExpression("Diameter", "Params.hole2_diameter")
hole2.DepthType = "ThroughAll"
hole2.HoleCutType = "Countersink"
hole2.setExpression("HoleCutDiameter", "Params.hole2_csink_diameter")
hole2.HoleCutCountersinkAngle = 90

doc.recompute()
